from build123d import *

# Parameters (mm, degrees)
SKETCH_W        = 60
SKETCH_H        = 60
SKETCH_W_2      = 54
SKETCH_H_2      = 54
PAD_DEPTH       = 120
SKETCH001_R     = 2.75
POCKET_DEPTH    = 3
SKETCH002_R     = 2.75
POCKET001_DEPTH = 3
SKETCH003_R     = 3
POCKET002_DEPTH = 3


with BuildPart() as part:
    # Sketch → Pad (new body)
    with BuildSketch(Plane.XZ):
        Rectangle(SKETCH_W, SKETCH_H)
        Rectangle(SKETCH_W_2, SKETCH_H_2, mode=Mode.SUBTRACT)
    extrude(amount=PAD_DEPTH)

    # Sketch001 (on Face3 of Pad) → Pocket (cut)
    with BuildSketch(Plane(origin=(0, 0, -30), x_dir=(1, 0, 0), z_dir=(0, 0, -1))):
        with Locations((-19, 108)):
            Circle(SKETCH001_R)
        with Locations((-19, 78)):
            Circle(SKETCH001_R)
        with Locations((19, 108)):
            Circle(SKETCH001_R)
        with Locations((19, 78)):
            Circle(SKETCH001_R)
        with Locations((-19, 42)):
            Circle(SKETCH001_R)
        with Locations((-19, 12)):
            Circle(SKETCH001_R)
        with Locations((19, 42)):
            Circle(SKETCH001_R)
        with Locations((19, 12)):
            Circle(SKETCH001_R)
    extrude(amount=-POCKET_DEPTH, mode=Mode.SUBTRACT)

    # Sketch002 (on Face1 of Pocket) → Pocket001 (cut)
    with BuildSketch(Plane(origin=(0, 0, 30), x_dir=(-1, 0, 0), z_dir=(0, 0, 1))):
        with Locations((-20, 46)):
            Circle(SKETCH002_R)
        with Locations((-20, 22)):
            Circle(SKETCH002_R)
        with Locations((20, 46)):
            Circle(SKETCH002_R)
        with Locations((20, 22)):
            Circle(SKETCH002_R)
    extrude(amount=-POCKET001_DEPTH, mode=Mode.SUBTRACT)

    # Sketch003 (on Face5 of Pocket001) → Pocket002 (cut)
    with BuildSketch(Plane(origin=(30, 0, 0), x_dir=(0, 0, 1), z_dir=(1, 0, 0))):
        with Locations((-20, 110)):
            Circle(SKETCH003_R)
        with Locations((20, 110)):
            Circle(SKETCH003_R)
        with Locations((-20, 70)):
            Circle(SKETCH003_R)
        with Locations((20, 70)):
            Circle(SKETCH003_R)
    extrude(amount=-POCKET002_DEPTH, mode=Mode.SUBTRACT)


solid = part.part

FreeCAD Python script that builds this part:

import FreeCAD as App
import Part
import Sketcher
from FreeCAD import Vector


def add_polygon(sketch, points):
    """Adds a closed chain of lines whose ends are joined by coincident constraints."""
    first, n = sketch.GeometryCount, len(points)
    for a, b in zip(points, points[1:] + points[:1]):
        sketch.addGeometry(Part.LineSegment(App.Vector(*a, 0), App.Vector(*b, 0)), False)
    for i in range(n):
        sketch.addConstraint(Sketcher.Constraint("Coincident", first + i, 2, first + (i + 1) % n, 1))

doc = App.newDocument("Part")
body = doc.addObject("PartDesign::Body", "Body")

# Sketch on XZ plane
sketch1 = doc.addObject("Sketcher::SketchObject", "Sketch")
body.addObject(sketch1)
sketch1.AttachmentSupport = (doc.XZ_Plane, [""])
sketch1.MapMode = "FlatFace"
add_polygon(sketch1, [(-30, 30), (-30, -30), (30, -30), (30, 30)])  # lines 0-3
add_polygon(sketch1, [(27, -27), (-27, -27), (-27, 27), (27, 27)])  # lines 4-7
sketch1.addConstraint(Sketcher.Constraint("Vertical", 0))
sketch1.addConstraint(Sketcher.Constraint("Horizontal", 1))
sketch1.addConstraint(Sketcher.Constraint("Vertical", 2))
sketch1.addConstraint(Sketcher.Constraint("Horizontal", 3))
sketch1.addConstraint(Sketcher.Constraint("Horizontal", 4))
sketch1.addConstraint(Sketcher.Constraint("Vertical", 5))
sketch1.addConstraint(Sketcher.Constraint("Horizontal", 6))
sketch1.addConstraint(Sketcher.Constraint("Vertical", 7))
sketch1.addConstraint(Sketcher.Constraint("Symmetric", 0, 2, 2, 2, -1, 1))
sketch1.addConstraint(Sketcher.Constraint("Symmetric", 4, 2, 6, 2, -1, 1))
sketch1.addConstraint(Sketcher.Constraint("Equal", 3, 0))
sketch1.addConstraint(Sketcher.Constraint("Equal", 6, 5))
sketch1.addConstraint(Sketcher.Constraint("DistanceX", 1, 1, 1, 2, 60.0))
sketch1.addConstraint(Sketcher.Constraint("DistanceX", 4, 2, 4, 1, 54.0))
pad1 = doc.addObject("PartDesign::Pad", "Pad")
body.addObject(pad1)
pad1.Profile = sketch1
pad1.Length = 120

# Sketch on XY plane
sketch2 = doc.addObject("Sketcher::SketchObject", "Sketch001")
body.addObject(sketch2)
sketch2.AttachmentSupport = (doc.XY_Plane, [""])
sketch2.MapMode = "FlatFace"
sketch2.AttachmentOffset = App.Placement(Vector(0, 0, -30), App.Rotation())
sketch2.addGeometry(Part.Circle(Vector(-19, -108, 0), Vector(0, 0, 1), 2.8), False)
sketch2.addGeometry(Part.Circle(Vector(-19, -78, 0), Vector(0, 0, 1), 2.8), False)
sketch2.addGeometry(Part.Circle(Vector(19, -108, 0), Vector(0, 0, 1), 2.8), False)
sketch2.addGeometry(Part.Circle(Vector(19, -78, 0), Vector(0, 0, 1), 2.8), False)
sketch2.addGeometry(Part.Circle(Vector(-19, -42, 0), Vector(0, 0, 1), 2.8), False)
sketch2.addGeometry(Part.Circle(Vector(-19, -12, 0), Vector(0, 0, 1), 2.8), False)
sketch2.addGeometry(Part.Circle(Vector(19, -42, 0), Vector(0, 0, 1), 2.8), False)
sketch2.addGeometry(Part.Circle(Vector(19, -12, 0), Vector(0, 0, 1), 2.8), False)
sketch2.addConstraint(Sketcher.Constraint("Equal", 0, 1))
sketch2.addConstraint(Sketcher.Constraint("Equal", 1, 2))
sketch2.addConstraint(Sketcher.Constraint("Equal", 2, 3))
sketch2.addConstraint(Sketcher.Constraint("Equal", 3, 4))
sketch2.addConstraint(Sketcher.Constraint("Equal", 4, 5))
sketch2.addConstraint(Sketcher.Constraint("Equal", 5, 6))
sketch2.addConstraint(Sketcher.Constraint("Equal", 6, 7))
sketch2.addConstraint(Sketcher.Constraint("Symmetric", 0, 3, 2, 3, -2))
sketch2.addConstraint(Sketcher.Constraint("Symmetric", 1, 3, 3, 3, -2))
sketch2.addConstraint(Sketcher.Constraint("Symmetric", 4, 3, 6, 3, -2))
sketch2.addConstraint(Sketcher.Constraint("Symmetric", 5, 3, 7, 3, -2))
sketch2.addConstraint(Sketcher.Constraint("Vertical", 0, 3, 1, 3))
sketch2.addConstraint(Sketcher.Constraint("Vertical", 1, 3, 4, 3))
sketch2.addConstraint(Sketcher.Constraint("Vertical", 4, 3, 5, 3))
sketch2.addConstraint(Sketcher.Constraint("Diameter", 0, 5.5))
sketch2.addConstraint(Sketcher.Constraint("DistanceX", 0, 3, -1, 1, 19.0))
sketch2.addConstraint(Sketcher.Constraint("DistanceY", 0, 3, -1, 1, 108.0))
sketch2.addConstraint(Sketcher.Constraint("DistanceY", 1, 3, -1, 1, 78.0))
sketch2.addConstraint(Sketcher.Constraint("DistanceY", 4, 3, -1, 1, 42.0))
sketch2.addConstraint(Sketcher.Constraint("DistanceY", 5, 3, -1, 1, 12.0))
pocket1 = doc.addObject("PartDesign::Pocket", "Pocket")
body.addObject(pocket1)
pocket1.Profile = sketch2
pocket1.Length = 3
pocket1.Reversed = True

# Sketch on XY plane
sketch3 = doc.addObject("Sketcher::SketchObject", "Sketch002")
body.addObject(sketch3)
sketch3.AttachmentSupport = (doc.XY_Plane, [""])
sketch3.MapMode = "FlatFace"
sketch3.AttachmentOffset = App.Placement(Vector(0, 0, 30), App.Rotation())
sketch3.addGeometry(Part.Circle(Vector(20, -46, 0), Vector(0, 0, 1), 2.8), False)
sketch3.addGeometry(Part.Circle(Vector(20, -22, 0), Vector(0, 0, 1), 2.8), False)
sketch3.addGeometry(Part.Circle(Vector(-20, -46, 0), Vector(0, 0, 1), 2.8), False)
sketch3.addGeometry(Part.Circle(Vector(-20, -22, 0), Vector(0, 0, 1), 2.8), False)
sketch3.addConstraint(Sketcher.Constraint("Equal", 0, 1))
sketch3.addConstraint(Sketcher.Constraint("Equal", 1, 2))
sketch3.addConstraint(Sketcher.Constraint("Equal", 2, 3))
sketch3.addConstraint(Sketcher.Constraint("Symmetric", 0, 3, 2, 3, -2))
sketch3.addConstraint(Sketcher.Constraint("Symmetric", 1, 3, 3, 3, -2))
sketch3.addConstraint(Sketcher.Constraint("Vertical", 0, 3, 1, 3))
sketch3.addConstraint(Sketcher.Constraint("Diameter", 0, 5.5))
sketch3.addConstraint(Sketcher.Constraint("DistanceX", -1, 1, 0, 3, 20.0))
sketch3.addConstraint(Sketcher.Constraint("DistanceY", 0, 3, -1, 1, 46.0))
sketch3.addConstraint(Sketcher.Constraint("DistanceY", 1, 3, -1, 1, 22.0))
pocket2 = doc.addObject("PartDesign::Pocket", "Pocket001")
body.addObject(pocket2)
pocket2.Profile = sketch3
pocket2.Length = 3

# Sketch on YZ plane
sketch4 = doc.addObject("Sketcher::SketchObject", "Sketch003")
body.addObject(sketch4)
sketch4.AttachmentSupport = (doc.YZ_Plane, [""])
sketch4.MapMode = "FlatFace"
sketch4.AttachmentOffset = App.Placement(Vector(0, 0, 30), App.Rotation())
sketch4.addGeometry(Part.Circle(Vector(-110, -20, 0), Vector(0, 0, 1), 3), False)
sketch4.addGeometry(Part.Circle(Vector(-110, 20, 0), Vector(0, 0, 1), 3), False)
sketch4.addGeometry(Part.Circle(Vector(-70, -20, 0), Vector(0, 0, 1), 3), False)
sketch4.addGeometry(Part.Circle(Vector(-70, 20, 0), Vector(0, 0, 1), 3), False)
sketch4.addConstraint(Sketcher.Constraint("Equal", 0, 1))
sketch4.addConstraint(Sketcher.Constraint("Equal", 1, 2))
sketch4.addConstraint(Sketcher.Constraint("Equal", 2, 3))
sketch4.addConstraint(Sketcher.Constraint("Symmetric", 0, 3, 1, 3, -1))
sketch4.addConstraint(Sketcher.Constraint("Symmetric", 2, 3, 3, 3, -1))
sketch4.addConstraint(Sketcher.Constraint("Horizontal", 0, 3, 2, 3))
sketch4.addConstraint(Sketcher.Constraint("Diameter", 0, 6.0))
sketch4.addConstraint(Sketcher.Constraint("DistanceX", 0, 3, -1, 1, 110.0))
sketch4.addConstraint(Sketcher.Constraint("DistanceY", 0, 3, -1, 1, 20.0))
sketch4.addConstraint(Sketcher.Constraint("DistanceX", 2, 3, -1, 1, 70.0))
pocket3 = doc.addObject("PartDesign::Pocket", "Pocket002")
body.addObject(pocket3)
pocket3.Profile = sketch4
pocket3.Length = 3

doc.recompute()
